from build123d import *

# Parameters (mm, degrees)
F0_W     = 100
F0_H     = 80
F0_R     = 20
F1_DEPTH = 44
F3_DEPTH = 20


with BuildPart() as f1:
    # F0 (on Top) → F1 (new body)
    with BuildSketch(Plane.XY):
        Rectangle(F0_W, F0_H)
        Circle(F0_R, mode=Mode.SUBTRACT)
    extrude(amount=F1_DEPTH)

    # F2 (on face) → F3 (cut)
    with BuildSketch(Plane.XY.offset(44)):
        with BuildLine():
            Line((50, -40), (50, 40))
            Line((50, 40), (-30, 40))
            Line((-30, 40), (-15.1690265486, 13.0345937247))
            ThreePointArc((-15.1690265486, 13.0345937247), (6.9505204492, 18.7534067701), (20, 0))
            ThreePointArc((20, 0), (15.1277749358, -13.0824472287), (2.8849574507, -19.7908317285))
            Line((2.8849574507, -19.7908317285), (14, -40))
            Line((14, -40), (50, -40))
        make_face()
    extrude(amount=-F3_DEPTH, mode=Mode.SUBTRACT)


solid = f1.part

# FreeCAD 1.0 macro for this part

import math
import FreeCAD as App
import Part
import Sketcher

V = App.Vector
Q = App.Units.Quantity

doc = App.newDocument("Part")
params = doc.addObject("Spreadsheet::Sheet", "Params")
for row, (alias, value) in enumerate([
    ("sketch1_diameter", "40 mm"),
    ("sketch1_width", "100 mm"),
    ("sketch1_height", "80 mm"),
    ("pad1_length", "44 mm"),
    ("sketch2_radius", "20 mm"),
    ("sketch2_width", "80 mm"),
    ("sketch2_width2", "36 mm"),
    ("pocket1_length", "20 mm"),
], start=1):
    params.set(f"A{row}", alias)
    params.set(f"B{row}", "=" + value)
    params.setAlias(f"B{row}", alias)

body = doc.addObject("PartDesign::Body", "Body")

sketch1 = body.newObject("Sketcher::SketchObject", "Sketch")
sketch1.AttachmentSupport = (doc.getObject("XY_Plane"), [""])
sketch1.MapMode = "FlatFace"
sketch1.addGeometry([
    Part.LineSegment(V(-50, 40, 0), V(-50, -40, 0)),
    Part.LineSegment(V(-50, -40, 0), V(50, -40, 0)),
    Part.LineSegment(V(50, -40, 0), V(50, 40, 0)),
    Part.LineSegment(V(50, 40, 0), V(-50, 40, 0)),
    Part.Circle(V(0, 0, 0), V(0, 0, 1), 20),
], False)
sketch1.addConstraint([
    Sketcher.Constraint("Coincident", 0, 2, 1, 1),
    Sketcher.Constraint("Coincident", 1, 2, 2, 1),
    Sketcher.Constraint("Coincident", 2, 2, 3, 1),
    Sketcher.Constraint("Coincident", 3, 2, 0, 1),
    Sketcher.Constraint("Vertical", 0),
    Sketcher.Constraint("Horizontal", 1),
    Sketcher.Constraint("Vertical", 2),
    Sketcher.Constraint("Horizontal", 3),
    Sketcher.Constraint("Coincident", 4, 3, -1, 1),
    Sketcher.Constraint("Symmetric", 0, 2, 2, 2, -1, 1),
    Sketcher.Constraint("Diameter", 4, Q("40 mm")),
    Sketcher.Constraint("DistanceX", 1, 1, 1, 2, Q("100 mm")),
    Sketcher.Constraint("DistanceY", 0, 2, 0, 1, Q("80 mm")),
])
sketch1.setExpression("Constraints[10]", "Params.sketch1_diameter")
sketch1.setExpression("Constraints[11]", "Params.sketch1_width")
sketch1.setExpression("Constraints[12]", "Params.sketch1_height")
pad1 = body.newObject("PartDesign::Pad", "Pad")
pad1.Profile = sketch1
pad1.setExpression("Length", "Params.pad1_length")

sketch2 = body.newObject("Sketcher::SketchObject", "Sketch001")
sketch2.AttachmentSupport = (doc.getObject("XY_Plane"), [""])
sketch2.MapMode = "FlatFace"
sketch2.AttachmentOffset = App.Placement(V(0, 0, 44), App.Rotation())
sketch2.addGeometry([
    Part.LineSegment(V(50, -40, 0), V(50, 40, 0)),
    Part.LineSegment(V(50, 40, 0), V(-30, 40, 0)),
    Part.LineSegment(V(-30, 40, 0), V(-15, 13, 0)),
    Part.ArcOfCircle(Part.Circle(V(0, 0, 0), V(0, 0, 1), 20), math.radians(-82), math.radians(139)),
    Part.LineSegment(V(3, -20, 0), V(14, -40, 0)),
    Part.LineSegment(V(14, -40, 0), V(50, -40, 0)),
], False)
sketch2.addConstraint([
    Sketcher.Constraint("Coincident", 0, 2, 1, 1),
    Sketcher.Constraint("Coincident", 1, 2, 2, 1),
    Sketcher.Constraint("Coincident", 2, 2, 3, 2),
    Sketcher.Constraint("Coincident", 3, 1, 4, 1),
    Sketcher.Constraint("Coincident", 4, 2, 5, 1),
    Sketcher.Constraint("Coincident", 5, 2, 0, 1),
    Sketcher.Constraint("Vertical", 0),
    Sketcher.Constraint("Horizontal", 1),
    Sketcher.Constraint("Horizontal", 5),
    Sketcher.Constraint("Coincident", 3, 3, -1, 1),
    Sketcher.Constraint("Parallel", 2, 4),
    Sketcher.Constraint("Equal", 1, 0),
    Sketcher.Constraint("Radius", 3, Q("20 mm")),
    Sketcher.Constraint("DistanceX", 1, 2, 1, 1, Q("80 mm")),
    Sketcher.Constraint("DistanceX", 5, 1, 5, 2, Q("36 mm")),
    Sketcher.Constraint("DistanceX", -1, 1, 0, 2, Q("50 mm")),
    Sketcher.Constraint("DistanceY", -1, 1, 0, 2, Q("40 mm")),
    Sketcher.Constraint("DistanceY", 3, 1, -1, 1, Q("19.790832 mm")),
])
sketch2.setExpression("Constraints[12]", "Params.sketch2_radius")
sketch2.setExpression("Constraints[13]", "Params.sketch2_width")
sketch2.setExpression("Constraints[14]", "Params.sketch2_width2")
pocket1 = body.newObject("PartDesign::Pocket", "Pocket")
pocket1.Profile = sketch2
pocket1.setExpression("Length", "Params.pocket1_length")

doc.recompute()
